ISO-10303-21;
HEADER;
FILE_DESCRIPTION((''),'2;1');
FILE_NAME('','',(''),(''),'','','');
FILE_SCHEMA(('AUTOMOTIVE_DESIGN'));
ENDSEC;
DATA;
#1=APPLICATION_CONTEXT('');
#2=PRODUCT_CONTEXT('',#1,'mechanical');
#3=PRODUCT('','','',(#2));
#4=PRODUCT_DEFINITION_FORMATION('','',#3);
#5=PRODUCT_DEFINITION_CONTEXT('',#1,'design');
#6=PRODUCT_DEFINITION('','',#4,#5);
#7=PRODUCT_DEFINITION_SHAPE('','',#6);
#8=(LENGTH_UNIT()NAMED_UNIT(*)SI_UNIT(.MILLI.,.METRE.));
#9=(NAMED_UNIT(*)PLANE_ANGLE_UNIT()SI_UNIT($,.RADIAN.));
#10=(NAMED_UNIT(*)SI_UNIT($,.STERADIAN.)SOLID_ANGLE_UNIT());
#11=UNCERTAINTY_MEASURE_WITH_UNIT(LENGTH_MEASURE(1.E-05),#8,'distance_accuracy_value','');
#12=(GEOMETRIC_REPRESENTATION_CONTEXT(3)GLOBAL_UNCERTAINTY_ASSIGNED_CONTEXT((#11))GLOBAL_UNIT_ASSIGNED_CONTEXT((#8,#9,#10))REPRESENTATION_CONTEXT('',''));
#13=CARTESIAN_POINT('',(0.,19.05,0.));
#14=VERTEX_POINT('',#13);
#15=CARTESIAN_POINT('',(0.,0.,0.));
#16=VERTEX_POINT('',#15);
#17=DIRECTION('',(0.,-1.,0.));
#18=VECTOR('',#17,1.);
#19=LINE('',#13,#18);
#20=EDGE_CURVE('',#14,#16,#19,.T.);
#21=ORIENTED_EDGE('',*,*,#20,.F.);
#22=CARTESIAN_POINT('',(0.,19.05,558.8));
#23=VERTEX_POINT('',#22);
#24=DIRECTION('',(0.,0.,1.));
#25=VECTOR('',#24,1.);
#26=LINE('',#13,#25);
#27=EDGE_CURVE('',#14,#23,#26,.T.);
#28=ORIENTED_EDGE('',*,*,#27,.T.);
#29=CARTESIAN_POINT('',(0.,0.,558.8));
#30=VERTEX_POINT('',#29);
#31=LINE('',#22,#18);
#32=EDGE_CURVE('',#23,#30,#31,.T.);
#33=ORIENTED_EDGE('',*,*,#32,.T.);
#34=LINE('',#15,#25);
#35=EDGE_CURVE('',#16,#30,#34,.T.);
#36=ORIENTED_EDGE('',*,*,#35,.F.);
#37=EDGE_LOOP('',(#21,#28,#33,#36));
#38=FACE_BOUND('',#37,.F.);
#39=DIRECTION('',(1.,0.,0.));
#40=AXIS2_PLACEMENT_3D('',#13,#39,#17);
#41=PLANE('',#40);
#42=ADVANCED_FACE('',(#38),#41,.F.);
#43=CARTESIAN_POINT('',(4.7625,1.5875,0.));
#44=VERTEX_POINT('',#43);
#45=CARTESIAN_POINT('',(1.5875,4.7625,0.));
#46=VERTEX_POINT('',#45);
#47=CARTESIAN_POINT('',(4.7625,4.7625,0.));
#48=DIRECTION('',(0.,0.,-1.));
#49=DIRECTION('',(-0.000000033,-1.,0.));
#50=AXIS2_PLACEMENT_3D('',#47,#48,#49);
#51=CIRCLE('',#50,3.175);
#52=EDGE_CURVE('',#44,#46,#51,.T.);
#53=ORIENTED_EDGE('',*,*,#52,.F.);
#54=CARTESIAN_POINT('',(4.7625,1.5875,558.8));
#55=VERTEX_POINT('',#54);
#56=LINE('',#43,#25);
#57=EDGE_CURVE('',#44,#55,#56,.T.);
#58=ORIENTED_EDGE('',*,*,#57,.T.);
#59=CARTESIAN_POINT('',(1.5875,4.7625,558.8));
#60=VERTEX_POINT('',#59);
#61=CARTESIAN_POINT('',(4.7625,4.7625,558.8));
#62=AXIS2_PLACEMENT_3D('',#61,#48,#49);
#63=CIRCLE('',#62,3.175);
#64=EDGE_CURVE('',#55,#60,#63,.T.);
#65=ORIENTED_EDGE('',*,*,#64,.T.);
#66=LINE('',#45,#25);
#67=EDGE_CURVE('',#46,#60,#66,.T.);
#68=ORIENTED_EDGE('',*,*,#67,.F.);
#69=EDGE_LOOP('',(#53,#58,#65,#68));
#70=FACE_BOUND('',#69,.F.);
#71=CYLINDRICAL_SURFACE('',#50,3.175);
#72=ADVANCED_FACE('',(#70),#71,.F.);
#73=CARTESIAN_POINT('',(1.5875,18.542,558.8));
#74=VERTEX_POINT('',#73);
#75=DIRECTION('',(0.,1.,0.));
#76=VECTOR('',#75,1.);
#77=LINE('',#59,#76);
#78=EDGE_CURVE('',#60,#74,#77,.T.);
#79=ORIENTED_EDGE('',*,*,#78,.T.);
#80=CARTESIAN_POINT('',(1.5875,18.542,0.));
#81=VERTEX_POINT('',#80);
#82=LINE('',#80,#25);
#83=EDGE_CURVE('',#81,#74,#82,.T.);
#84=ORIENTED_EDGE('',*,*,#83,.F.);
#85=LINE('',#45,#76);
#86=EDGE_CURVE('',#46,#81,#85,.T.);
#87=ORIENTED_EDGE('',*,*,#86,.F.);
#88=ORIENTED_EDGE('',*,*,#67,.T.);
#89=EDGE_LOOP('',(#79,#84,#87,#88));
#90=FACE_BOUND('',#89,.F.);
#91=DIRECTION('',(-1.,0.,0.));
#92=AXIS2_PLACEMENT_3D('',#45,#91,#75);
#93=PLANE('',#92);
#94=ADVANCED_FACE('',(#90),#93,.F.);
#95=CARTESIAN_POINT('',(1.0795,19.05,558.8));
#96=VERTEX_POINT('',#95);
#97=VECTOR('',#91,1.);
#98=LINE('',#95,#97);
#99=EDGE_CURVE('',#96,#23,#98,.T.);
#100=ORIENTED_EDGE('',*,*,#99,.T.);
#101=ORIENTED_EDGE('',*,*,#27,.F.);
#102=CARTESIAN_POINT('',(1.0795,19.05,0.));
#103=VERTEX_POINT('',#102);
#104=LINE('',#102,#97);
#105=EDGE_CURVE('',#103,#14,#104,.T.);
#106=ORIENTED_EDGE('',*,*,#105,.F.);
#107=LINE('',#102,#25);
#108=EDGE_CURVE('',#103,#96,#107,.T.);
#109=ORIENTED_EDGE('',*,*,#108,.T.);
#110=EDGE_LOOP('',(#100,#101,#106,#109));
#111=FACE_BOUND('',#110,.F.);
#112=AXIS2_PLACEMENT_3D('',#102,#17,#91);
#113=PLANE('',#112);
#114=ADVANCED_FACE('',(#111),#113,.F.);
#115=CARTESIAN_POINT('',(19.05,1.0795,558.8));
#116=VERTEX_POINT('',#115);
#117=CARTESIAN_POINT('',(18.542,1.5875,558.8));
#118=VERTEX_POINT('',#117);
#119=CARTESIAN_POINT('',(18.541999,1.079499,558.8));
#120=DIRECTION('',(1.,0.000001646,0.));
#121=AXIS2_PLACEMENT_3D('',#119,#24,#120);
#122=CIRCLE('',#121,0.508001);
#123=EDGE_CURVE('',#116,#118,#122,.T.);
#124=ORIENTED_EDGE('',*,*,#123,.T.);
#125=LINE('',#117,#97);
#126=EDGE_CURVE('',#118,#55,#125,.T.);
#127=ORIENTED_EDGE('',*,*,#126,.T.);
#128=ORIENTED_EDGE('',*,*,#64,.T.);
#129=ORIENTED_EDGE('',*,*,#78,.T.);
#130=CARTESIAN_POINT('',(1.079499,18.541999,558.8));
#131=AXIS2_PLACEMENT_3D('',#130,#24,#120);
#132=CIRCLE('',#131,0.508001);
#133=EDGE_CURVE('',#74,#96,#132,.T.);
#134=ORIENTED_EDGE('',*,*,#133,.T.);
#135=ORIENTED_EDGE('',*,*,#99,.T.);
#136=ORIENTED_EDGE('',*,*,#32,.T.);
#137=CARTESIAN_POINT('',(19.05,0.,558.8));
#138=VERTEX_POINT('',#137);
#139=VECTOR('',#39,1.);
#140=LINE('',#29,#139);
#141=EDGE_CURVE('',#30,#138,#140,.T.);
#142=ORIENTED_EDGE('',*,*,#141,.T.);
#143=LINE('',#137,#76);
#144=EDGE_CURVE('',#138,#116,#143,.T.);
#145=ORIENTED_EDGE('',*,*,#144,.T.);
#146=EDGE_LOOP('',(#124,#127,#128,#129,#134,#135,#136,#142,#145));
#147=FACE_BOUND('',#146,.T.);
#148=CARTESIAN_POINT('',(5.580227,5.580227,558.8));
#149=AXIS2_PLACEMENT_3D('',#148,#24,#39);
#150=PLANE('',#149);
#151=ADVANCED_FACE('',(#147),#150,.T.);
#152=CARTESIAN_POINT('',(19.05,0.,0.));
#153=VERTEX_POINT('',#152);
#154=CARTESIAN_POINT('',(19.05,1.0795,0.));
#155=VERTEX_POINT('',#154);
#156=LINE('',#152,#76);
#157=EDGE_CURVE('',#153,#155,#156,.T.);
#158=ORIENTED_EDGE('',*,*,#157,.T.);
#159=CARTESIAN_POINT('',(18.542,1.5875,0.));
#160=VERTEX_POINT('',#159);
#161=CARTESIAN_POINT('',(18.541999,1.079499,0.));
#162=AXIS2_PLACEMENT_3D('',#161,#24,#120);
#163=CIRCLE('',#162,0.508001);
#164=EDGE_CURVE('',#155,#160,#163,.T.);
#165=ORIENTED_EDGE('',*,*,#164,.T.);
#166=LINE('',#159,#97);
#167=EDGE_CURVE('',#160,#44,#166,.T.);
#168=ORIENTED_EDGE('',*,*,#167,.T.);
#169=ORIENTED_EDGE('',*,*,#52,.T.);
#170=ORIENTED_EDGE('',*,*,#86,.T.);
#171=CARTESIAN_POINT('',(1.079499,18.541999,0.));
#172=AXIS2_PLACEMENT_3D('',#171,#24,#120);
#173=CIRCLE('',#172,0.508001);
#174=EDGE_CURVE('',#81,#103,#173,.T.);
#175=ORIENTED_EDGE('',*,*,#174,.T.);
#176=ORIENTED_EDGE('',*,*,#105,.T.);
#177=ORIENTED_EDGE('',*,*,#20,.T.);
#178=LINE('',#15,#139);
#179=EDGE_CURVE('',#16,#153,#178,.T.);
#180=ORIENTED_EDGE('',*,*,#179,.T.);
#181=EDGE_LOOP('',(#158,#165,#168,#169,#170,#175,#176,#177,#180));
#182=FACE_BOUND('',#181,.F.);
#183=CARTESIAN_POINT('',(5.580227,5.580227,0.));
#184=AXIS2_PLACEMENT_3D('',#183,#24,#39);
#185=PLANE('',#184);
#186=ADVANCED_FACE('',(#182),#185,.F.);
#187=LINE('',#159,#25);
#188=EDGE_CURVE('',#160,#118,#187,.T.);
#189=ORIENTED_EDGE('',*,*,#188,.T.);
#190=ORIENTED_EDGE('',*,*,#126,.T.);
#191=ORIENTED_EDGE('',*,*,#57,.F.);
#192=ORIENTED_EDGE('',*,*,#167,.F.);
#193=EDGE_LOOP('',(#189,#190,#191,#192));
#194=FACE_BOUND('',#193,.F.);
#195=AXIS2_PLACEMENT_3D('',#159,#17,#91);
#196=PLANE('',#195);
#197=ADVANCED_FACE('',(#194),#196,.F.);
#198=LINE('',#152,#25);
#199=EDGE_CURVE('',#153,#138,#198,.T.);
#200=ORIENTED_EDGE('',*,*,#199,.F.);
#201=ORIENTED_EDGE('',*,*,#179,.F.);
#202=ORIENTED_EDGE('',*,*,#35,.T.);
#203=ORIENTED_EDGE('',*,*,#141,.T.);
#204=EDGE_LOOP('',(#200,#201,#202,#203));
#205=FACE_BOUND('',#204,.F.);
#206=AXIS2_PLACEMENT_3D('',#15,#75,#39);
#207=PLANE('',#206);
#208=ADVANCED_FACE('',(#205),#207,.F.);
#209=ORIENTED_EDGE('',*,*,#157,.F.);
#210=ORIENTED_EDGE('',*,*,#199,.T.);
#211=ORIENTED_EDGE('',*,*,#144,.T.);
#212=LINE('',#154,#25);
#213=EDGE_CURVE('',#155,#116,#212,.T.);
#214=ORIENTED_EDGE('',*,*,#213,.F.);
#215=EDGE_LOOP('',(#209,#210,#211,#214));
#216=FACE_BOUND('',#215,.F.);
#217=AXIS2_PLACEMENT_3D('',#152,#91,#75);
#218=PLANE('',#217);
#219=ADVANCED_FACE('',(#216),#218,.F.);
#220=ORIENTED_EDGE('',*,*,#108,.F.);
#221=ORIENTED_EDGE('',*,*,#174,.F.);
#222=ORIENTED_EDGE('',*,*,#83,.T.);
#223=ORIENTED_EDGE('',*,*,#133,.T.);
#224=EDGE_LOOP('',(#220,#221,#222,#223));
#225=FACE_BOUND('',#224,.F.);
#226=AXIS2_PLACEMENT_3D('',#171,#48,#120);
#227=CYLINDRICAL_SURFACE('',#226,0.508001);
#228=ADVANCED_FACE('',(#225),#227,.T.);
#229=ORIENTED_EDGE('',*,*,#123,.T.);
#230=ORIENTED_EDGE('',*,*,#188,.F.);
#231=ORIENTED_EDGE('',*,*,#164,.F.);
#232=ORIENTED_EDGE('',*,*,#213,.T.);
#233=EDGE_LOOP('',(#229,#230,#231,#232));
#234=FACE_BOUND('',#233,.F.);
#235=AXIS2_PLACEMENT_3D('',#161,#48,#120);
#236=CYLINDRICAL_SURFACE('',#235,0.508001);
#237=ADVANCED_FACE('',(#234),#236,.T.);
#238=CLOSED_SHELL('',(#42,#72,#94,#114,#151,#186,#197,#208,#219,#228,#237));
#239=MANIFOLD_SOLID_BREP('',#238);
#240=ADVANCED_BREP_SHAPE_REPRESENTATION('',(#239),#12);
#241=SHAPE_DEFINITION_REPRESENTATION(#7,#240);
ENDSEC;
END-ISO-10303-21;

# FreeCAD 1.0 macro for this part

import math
import FreeCAD as App
import Part
import Sketcher
Q = App.Units.Quantity

doc = App.newDocument("Part")
params = doc.addObject("Spreadsheet::Sheet", "Params")
for row, (alias, value) in enumerate([
    ("sketch1_radius", "0.02 in"),
    ("sketch1_radius2", "0.125 in"),
    ("sketch1_width", "0.75 in"),
    ("pad1_length", "22 in"),
], start=1):
    params.set(f"A{row}", alias)
    params.set(f"B{row}", "=" + value)
    params.setAlias(f"B{row}", alias)

body = doc.addObject("PartDesign::Body", "Body")

# Sketch on XY plane
sketch1 = doc.addObject("Sketcher::SketchObject", "Sketch")
body.addObject(sketch1)
sketch1.AttachmentSupport = (doc.XY_Plane, [""])
sketch1.MapMode = "FlatFace"
sketch1.addGeometry(Part.LineSegment(App.Vector(0, 19.1, 0), App.Vector(0, 0, 0)), False)
sketch1.addGeometry(Part.LineSegment(App.Vector(0, 0, 0), App.Vector(19.1, 0, 0)), False)
sketch1.addGeometry(Part.LineSegment(App.Vector(19.1, 0, 0), App.Vector(19.1, 1.1, 0)), False)
sketch1.addGeometry(Part.ArcOfCircle(Part.Circle(App.Vector(18.5, 1.1, 0), App.Vector(0, 0, 1), 0.5), math.radians(0), math.radians(90)), False)
sketch1.addGeometry(Part.LineSegment(App.Vector(18.5, 1.6, 0), App.Vector(4.8, 1.6, 0)), False)
sketch1.addGeometry(Part.ArcOfCircle(Part.Circle(App.Vector(4.8, 4.8, 0), App.Vector(0, 0, 1), 3.2), math.radians(-180), math.radians(-90)), False)
sketch1.addGeometry(Part.LineSegment(App.Vector(1.6, 4.8, 0), App.Vector(1.6, 18.5, 0)), False)
sketch1.addGeometry(Part.ArcOfCircle(Part.Circle(App.Vector(1.1, 18.5, 0), App.Vector(0, 0, 1), 0.5), math.radians(0), math.radians(90)), False)
sketch1.addGeometry(Part.LineSegment(App.Vector(1.1, 19.1, 0), App.Vector(0, 19.1, 0)), False)
sketch1.addConstraint(Sketcher.Constraint("Coincident", 0, 2, 1, 1))
sketch1.addConstraint(Sketcher.Constraint("Coincident", 1, 2, 2, 1))
sketch1.addConstraint(Sketcher.Constraint("Tangent", 2, 2, 3, 1))
sketch1.addConstraint(Sketcher.Constraint("Tangent", 3, 2, 4, 1))
sketch1.addConstraint(Sketcher.Constraint("Tangent", 4, 2, 5, 2))
sketch1.addConstraint(Sketcher.Constraint("Tangent", 5, 1, 6, 1))
sketch1.addConstraint(Sketcher.Constraint("Tangent", 6, 2, 7, 1))
sketch1.addConstraint(Sketcher.Constraint("Tangent", 7, 2, 8, 1))
sketch1.addConstraint(Sketcher.Constraint("Coincident", 8, 2, 0, 1))
sketch1.addConstraint(Sketcher.Constraint("Vertical", 0))
sketch1.addConstraint(Sketcher.Constraint("Horizontal", 1))
sketch1.addConstraint(Sketcher.Constraint("Vertical", 2))
sketch1.addConstraint(Sketcher.Constraint("Horizontal", 4))
sketch1.addConstraint(Sketcher.Constraint("Vertical", 6))
sketch1.addConstraint(Sketcher.Constraint("Horizontal", 8))
sketch1.addConstraint(Sketcher.Constraint("Coincident", 0, 2, -1, 1))
sketch1.addConstraint(Sketcher.Constraint("Equal", 3, 7))
sketch1.addConstraint(Sketcher.Constraint("Equal", 1, 0))
sketch1.addConstraint(Sketcher.Constraint("Equal", 8, 2))
sketch1.addConstraint(Sketcher.Constraint("Radius", 3, Q("0.02 in")))
sketch1.addConstraint(Sketcher.Constraint("Radius", 5, Q("0.125 in")))
sketch1.addConstraint(Sketcher.Constraint("DistanceX", 1, 1, 1, 2, Q("0.75 in")))
sketch1.addConstraint(Sketcher.Constraint("DistanceX", 4, 2, 4, 1, Q("0.5425 in")))
sketch1.setExpression("Constraints[19]", "Params.sketch1_radius")
sketch1.setExpression("Constraints[20]", "Params.sketch1_radius2")
sketch1.setExpression("Constraints[21]", "Params.sketch1_width")
pad1 = doc.addObject("PartDesign::Pad", "Pad")
body.addObject(pad1)
pad1.Profile = sketch1
pad1.setExpression("Length", "Params.pad1_length")

doc.recompute()
